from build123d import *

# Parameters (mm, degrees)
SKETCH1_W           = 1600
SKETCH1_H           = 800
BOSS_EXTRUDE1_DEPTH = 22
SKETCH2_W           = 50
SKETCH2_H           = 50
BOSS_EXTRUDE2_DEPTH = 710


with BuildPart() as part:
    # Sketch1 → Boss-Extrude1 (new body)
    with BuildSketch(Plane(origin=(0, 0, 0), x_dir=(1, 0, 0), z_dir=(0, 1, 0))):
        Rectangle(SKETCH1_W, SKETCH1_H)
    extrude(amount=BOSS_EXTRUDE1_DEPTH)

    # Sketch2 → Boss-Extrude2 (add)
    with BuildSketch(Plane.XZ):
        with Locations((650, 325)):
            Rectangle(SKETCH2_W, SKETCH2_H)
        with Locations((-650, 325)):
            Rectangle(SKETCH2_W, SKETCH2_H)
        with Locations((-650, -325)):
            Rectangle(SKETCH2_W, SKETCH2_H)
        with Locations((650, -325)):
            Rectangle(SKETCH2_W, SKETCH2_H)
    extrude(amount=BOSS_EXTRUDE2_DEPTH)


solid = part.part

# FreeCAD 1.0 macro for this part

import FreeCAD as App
import Part
import Sketcher


def add_polygon(sketch, points):
    """Adds a closed chain of lines whose ends are joined by coincident constraints."""
    first, n = sketch.GeometryCount, len(points)
    for a, b in zip(points, points[1:] + points[:1]):
        sketch.addGeometry(Part.LineSegment(App.Vector(*a, 0), App.Vector(*b, 0)), False)
    for i in range(n):
        sketch.addConstraint(Sketcher.Constraint("Coincident", first + i, 2, first + (i + 1) % n, 1))

doc = App.newDocument("Part")
params = doc.addObject("Spreadsheet::Sheet", "Params")
for row, (alias, value) in enumerate([
    ("sketch1_width", "1600 mm"),
    ("sketch1_height", "800 mm"),
    ("pad1_length", "22 mm"),
    ("sketch2_width", "50 mm"),
    ("pad2_length", "710 mm"),
], start=1):
    params.set(f"A{row}", alias)
    params.set(f"B{row}", "=" + value)
    params.setAlias(f"B{row}", alias)

body = doc.addObject("PartDesign::Body", "Body")

# Sketch on XZ plane
sketch1 = doc.addObject("Sketcher::SketchObject", "Sketch")
body.addObject(sketch1)
sketch1.AttachmentSupport = (doc.XZ_Plane, [""])
sketch1.MapMode = "FlatFace"
add_polygon(sketch1, [(-800, -400), (-800, 400), (800, 400), (800, -400)])  # lines 0-3
sketch1.addConstraint([
    Sketcher.Constraint("Vertical", 0),
    Sketcher.Constraint("Horizontal", 1),
    Sketcher.Constraint("Vertical", 2),
    Sketcher.Constraint("Horizontal", 3),
    Sketcher.Constraint("Symmetric", 0, 2, 2, 2, -1, 1),
    Sketcher.Constraint("DistanceX", 1, 1, 1, 2, 1600.0),
    Sketcher.Constraint("DistanceY", 0, 1, 0, 2, 800.0),
])
sketch1.setExpression("Constraints[9]", "Params.sketch1_width")
sketch1.setExpression("Constraints[10]", "Params.sketch1_height")
pad1 = doc.addObject("PartDesign::Pad", "Pad")
body.addObject(pad1)
pad1.Profile = sketch1
pad1.setExpression("Length", "Params.pad1_length")
pad1.Reversed = True

# Sketch on XZ plane
sketch2 = doc.addObject("Sketcher::SketchObject", "Sketch001")
body.addObject(sketch2)
sketch2.AttachmentSupport = (doc.XZ_Plane, [""])
sketch2.MapMode = "FlatFace"
add_polygon(sketch2, [(625, 350), (625, 300), (675, 300), (675, 350)])  # lines 0-3
add_polygon(sketch2, [(-675, 350), (-675, 300), (-625, 300), (-625, 350)])  # lines 4-7
add_polygon(sketch2, [(-675, -300), (-675, -350), (-625, -350), (-625, -300)])  # lines 8-11
add_polygon(sketch2, [(625, -300), (625, -350), (675, -350), (675, -300)])  # lines 12-15
sketch2.addConstraint([
    Sketcher.Constraint("Vertical", 0),
    Sketcher.Constraint("Horizontal", 1),
    Sketcher.Constraint("Vertical", 2),
    Sketcher.Constraint("Horizontal", 3),
    Sketcher.Constraint("Vertical", 4),
    Sketcher.Constraint("Horizontal", 5),
    Sketcher.Constraint("Vertical", 6),
    Sketcher.Constraint("Horizontal", 7),
    Sketcher.Constraint("Vertical", 8),
    Sketcher.Constraint("Horizontal", 9),
    Sketcher.Constraint("Vertical", 10),
    Sketcher.Constraint("Horizontal", 11),
    Sketcher.Constraint("Vertical", 12),
    Sketcher.Constraint("Horizontal", 13),
    Sketcher.Constraint("Vertical", 14),
    Sketcher.Constraint("Horizontal", 15),
    Sketcher.Constraint("Symmetric", 2, 2, 8, 2, -1, 1),
    Sketcher.Constraint("Symmetric", 0, 2, 10, 2, -1, 1),
    Sketcher.Constraint("Symmetric", 6, 2, 12, 2, -1, 1),
    Sketcher.Constraint("Symmetric", 4, 2, 14, 2, -1, 1),
    Sketcher.Constraint("Symmetric", 1, 2, 4, 2, -2),
    Sketcher.Constraint("Symmetric", 3, 2, 6, 2, -2),
    Sketcher.Constraint("Equal", 15, 0),
    Sketcher.Constraint("DistanceX", 1, 1, 1, 2, 50.0),
    Sketcher.Constraint("DistanceX", -1, 1, 0, 2, 625.0),
    Sketcher.Constraint("DistanceY", -1, 1, 0, 2, 300.0),
])
sketch2.setExpression("Constraints[39]", "Params.sketch2_width")
pad2 = doc.addObject("PartDesign::Pad", "Pad001")
body.addObject(pad2)
pad2.Profile = sketch2
pad2.setExpression("Length", "Params.pad2_length")

doc.recompute()
